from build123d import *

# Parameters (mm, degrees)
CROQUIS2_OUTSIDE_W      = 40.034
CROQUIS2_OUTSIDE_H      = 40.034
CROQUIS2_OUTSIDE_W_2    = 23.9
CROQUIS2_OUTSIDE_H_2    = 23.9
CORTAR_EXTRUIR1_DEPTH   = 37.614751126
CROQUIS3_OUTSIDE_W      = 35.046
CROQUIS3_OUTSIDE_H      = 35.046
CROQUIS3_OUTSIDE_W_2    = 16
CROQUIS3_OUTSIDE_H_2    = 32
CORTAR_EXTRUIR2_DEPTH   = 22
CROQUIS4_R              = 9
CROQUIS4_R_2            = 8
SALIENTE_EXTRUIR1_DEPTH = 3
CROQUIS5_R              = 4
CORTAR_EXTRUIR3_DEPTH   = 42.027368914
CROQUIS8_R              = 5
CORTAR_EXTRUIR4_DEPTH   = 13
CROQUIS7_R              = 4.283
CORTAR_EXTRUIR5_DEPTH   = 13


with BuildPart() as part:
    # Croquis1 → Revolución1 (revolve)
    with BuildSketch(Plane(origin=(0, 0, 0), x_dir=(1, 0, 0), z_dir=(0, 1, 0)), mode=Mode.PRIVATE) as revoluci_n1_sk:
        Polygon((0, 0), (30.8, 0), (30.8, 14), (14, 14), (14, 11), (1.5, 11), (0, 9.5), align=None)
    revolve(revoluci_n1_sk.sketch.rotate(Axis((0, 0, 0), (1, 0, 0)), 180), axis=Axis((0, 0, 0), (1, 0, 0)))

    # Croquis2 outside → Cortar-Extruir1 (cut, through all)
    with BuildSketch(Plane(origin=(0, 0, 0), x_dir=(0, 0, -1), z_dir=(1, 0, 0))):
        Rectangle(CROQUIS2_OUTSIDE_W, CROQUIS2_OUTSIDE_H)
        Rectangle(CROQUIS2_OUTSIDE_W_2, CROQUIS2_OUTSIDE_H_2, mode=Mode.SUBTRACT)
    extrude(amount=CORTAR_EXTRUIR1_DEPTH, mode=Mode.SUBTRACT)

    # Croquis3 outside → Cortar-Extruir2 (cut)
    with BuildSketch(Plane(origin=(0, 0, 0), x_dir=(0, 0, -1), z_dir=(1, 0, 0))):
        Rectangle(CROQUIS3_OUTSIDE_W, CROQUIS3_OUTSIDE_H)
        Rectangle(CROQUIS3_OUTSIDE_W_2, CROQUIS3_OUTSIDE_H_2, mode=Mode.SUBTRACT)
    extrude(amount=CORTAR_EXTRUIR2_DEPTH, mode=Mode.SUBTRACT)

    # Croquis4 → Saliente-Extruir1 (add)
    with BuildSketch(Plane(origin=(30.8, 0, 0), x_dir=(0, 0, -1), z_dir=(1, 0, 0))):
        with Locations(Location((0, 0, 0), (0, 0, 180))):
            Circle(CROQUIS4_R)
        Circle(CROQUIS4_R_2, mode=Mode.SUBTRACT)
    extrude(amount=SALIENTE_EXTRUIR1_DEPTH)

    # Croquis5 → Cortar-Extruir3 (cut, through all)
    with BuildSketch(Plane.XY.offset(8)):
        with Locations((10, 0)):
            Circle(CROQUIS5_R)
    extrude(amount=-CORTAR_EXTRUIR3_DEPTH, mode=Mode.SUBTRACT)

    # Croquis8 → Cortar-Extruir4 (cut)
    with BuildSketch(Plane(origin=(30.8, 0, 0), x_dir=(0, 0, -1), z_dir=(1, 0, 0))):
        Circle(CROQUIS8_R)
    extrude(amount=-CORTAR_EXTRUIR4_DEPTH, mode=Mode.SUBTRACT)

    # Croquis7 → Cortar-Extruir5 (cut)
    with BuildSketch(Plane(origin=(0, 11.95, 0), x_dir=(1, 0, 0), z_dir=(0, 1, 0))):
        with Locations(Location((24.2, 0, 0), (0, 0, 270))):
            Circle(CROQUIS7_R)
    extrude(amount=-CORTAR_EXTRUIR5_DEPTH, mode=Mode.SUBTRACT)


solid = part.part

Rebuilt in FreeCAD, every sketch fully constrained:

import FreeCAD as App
import Part
import Sketcher

V = App.Vector
Q = App.Units.Quantity

doc = App.newDocument("Part")
body = doc.addObject("PartDesign::Body", "Body")

sketch1 = body.newObject("Sketcher::SketchObject", "Sketch")
sketch1.AttachmentSupport = (doc.getObject("XZ_Plane"), [""])
sketch1.MapMode = "FlatFace"
sketch1.addGeometry(Part.LineSegment(V(0, 0, 0), V(30.8, 0, 0)), False)
sketch1.addGeometry(Part.LineSegment(V(30.8, 0, 0), V(30.8, -14, 0)), False)
sketch1.addGeometry(Part.LineSegment(V(30.8, -14, 0), V(14, -14, 0)), False)
sketch1.addGeometry(Part.LineSegment(V(14, -14, 0), V(14, -11, 0)), False)
sketch1.addGeometry(Part.LineSegment(V(14, -11, 0), V(1.5, -11, 0)), False)
sketch1.addGeometry(Part.LineSegment(V(1.5, -11, 0), V(0, -9.5, 0)), False)
sketch1.addGeometry(Part.LineSegment(V(0, -9.5, 0), V(0, 0, 0)), False)
sketch1.addConstraint(Sketcher.Constraint("Coincident", 0, 2, 1, 1))
sketch1.addConstraint(Sketcher.Constraint("Coincident", 1, 2, 2, 1))
sketch1.addConstraint(Sketcher.Constraint("Coincident", 2, 2, 3, 1))
sketch1.addConstraint(Sketcher.Constraint("Coincident", 3, 2, 4, 1))
sketch1.addConstraint(Sketcher.Constraint("Coincident", 4, 2, 5, 1))
sketch1.addConstraint(Sketcher.Constraint("Coincident", 5, 2, 6, 1))
sketch1.addConstraint(Sketcher.Constraint("Coincident", 6, 2, 0, 1))
sketch1.addConstraint(Sketcher.Constraint("Horizontal", 0))
sketch1.addConstraint(Sketcher.Constraint("Vertical", 1))
sketch1.addConstraint(Sketcher.Constraint("Horizontal", 2))
sketch1.addConstraint(Sketcher.Constraint("Vertical", 3))
sketch1.addConstraint(Sketcher.Constraint("Horizontal", 4))
sketch1.addConstraint(Sketcher.Constraint("Vertical", 6))
sketch1.addConstraint(Sketcher.Constraint("Coincident", 6, 2, -1, 1))
sketch1.addConstraint(Sketcher.Constraint("DistanceY", 1, 2, 1, 1, Q("14 mm")))
sketch1.addConstraint(Sketcher.Constraint("DistanceY", 3, 1, 3, 2, Q("3 mm")))
sketch1.addConstraint(Sketcher.Constraint("Angle", 5, Q("135 deg")))
sketch1.addConstraint(Sketcher.Constraint("DistanceX", 0, 1, 0, 2, Q("30.8 mm")))
sketch1.addConstraint(Sketcher.Constraint("DistanceX", 2, 2, 2, 1, Q("16.8 mm")))
sketch1.addConstraint(Sketcher.Constraint("DistanceX", 4, 2, 4, 1, Q("12.5 mm")))
revolution = body.newObject("PartDesign::Revolution", "Revolution")
revolution.Profile = sketch1
revolution.ReferenceAxis = (sketch1, ["H_Axis"])
revolution.Angle = 360

sketch2 = body.newObject("Sketcher::SketchObject", "Sketch001")
sketch2.AttachmentSupport = (doc.getObject("YZ_Plane"), [""])
sketch2.MapMode = "FlatFace"
sketch2.addGeometry(Part.LineSegment(V(20, 20, 0), V(-20, 20, 0)), False)
sketch2.addGeometry(Part.LineSegment(V(-20, 20, 0), V(-20, -20, 0)), False)
sketch2.addGeometry(Part.LineSegment(V(-20, -20, 0), V(20, -20, 0)), False)
sketch2.addGeometry(Part.LineSegment(V(20, -20, 0), V(20, 20, 0)), False)
sketch2.addGeometry(Part.LineSegment(V(-12, -12, 0), V(-12, 12, 0)), False)
sketch2.addGeometry(Part.LineSegment(V(-12, 12, 0), V(12, 12, 0)), False)
sketch2.addGeometry(Part.LineSegment(V(12, 12, 0), V(12, -12, 0)), False)
sketch2.addGeometry(Part.LineSegment(V(12, -12, 0), V(-12, -12, 0)), False)
sketch2.addConstraint(Sketcher.Constraint("Coincident", 0, 2, 1, 1))
sketch2.addConstraint(Sketcher.Constraint("Coincident", 1, 2, 2, 1))
sketch2.addConstraint(Sketcher.Constraint("Coincident", 2, 2, 3, 1))
sketch2.addConstraint(Sketcher.Constraint("Coincident", 3, 2, 0, 1))
sketch2.addConstraint(Sketcher.Constraint("Coincident", 4, 2, 5, 1))
sketch2.addConstraint(Sketcher.Constraint("Coincident", 5, 2, 6, 1))
sketch2.addConstraint(Sketcher.Constraint("Coincident", 6, 2, 7, 1))
sketch2.addConstraint(Sketcher.Constraint("Coincident", 7, 2, 4, 1))
sketch2.addConstraint(Sketcher.Constraint("Horizontal", 0))
sketch2.addConstraint(Sketcher.Constraint("Vertical", 1))
sketch2.addConstraint(Sketcher.Constraint("Horizontal", 2))
sketch2.addConstraint(Sketcher.Constraint("Vertical", 3))
sketch2.addConstraint(Sketcher.Constraint("Vertical", 4))
sketch2.addConstraint(Sketcher.Constraint("Horizontal", 5))
sketch2.addConstraint(Sketcher.Constraint("Vertical", 6))
sketch2.addConstraint(Sketcher.Constraint("Horizontal", 7))
sketch2.addConstraint(Sketcher.Constraint("Symmetric", 0, 2, 2, 2, -1, 1))
sketch2.addConstraint(Sketcher.Constraint("Symmetric", 4, 2, 6, 2, -1, 1))
sketch2.addConstraint(Sketcher.Constraint("Equal", 2, 1))
sketch2.addConstraint(Sketcher.Constraint("Equal", 7, 4))
sketch2.addConstraint(Sketcher.Constraint("DistanceX", 5, 1, 5, 2, Q("23.9 mm")))
sketch2.addConstraint(Sketcher.Constraint("DistanceX", 0, 2, 0, 1, Q("40.034 mm")))
pocket1 = body.newObject("PartDesign::Pocket", "Pocket")
pocket1.Profile = sketch2
pocket1.Type = "ThroughAll"
pocket1.Reversed = True

sketch3 = body.newObject("Sketcher::SketchObject", "Sketch002")
sketch3.AttachmentSupport = (doc.getObject("YZ_Plane"), [""])
sketch3.MapMode = "FlatFace"
sketch3.addGeometry(Part.LineSegment(V(18, 18, 0), V(-18, 18, 0)), False)
sketch3.addGeometry(Part.LineSegment(V(-18, 18, 0), V(-18, -18, 0)), False)
sketch3.addGeometry(Part.LineSegment(V(-18, -18, 0), V(18, -18, 0)), False)
sketch3.addGeometry(Part.LineSegment(V(18, -18, 0), V(18, 18, 0)), False)
sketch3.addGeometry(Part.LineSegment(V(-16, -8, 0), V(-16, 8, 0)), False)
sketch3.addGeometry(Part.LineSegment(V(-16, 8, 0), V(16, 8, 0)), False)
sketch3.addGeometry(Part.LineSegment(V(16, 8, 0), V(16, -8, 0)), False)
sketch3.addGeometry(Part.LineSegment(V(16, -8, 0), V(-16, -8, 0)), False)
sketch3.addConstraint(Sketcher.Constraint("Coincident", 0, 2, 1, 1))
sketch3.addConstraint(Sketcher.Constraint("Coincident", 1, 2, 2, 1))
sketch3.addConstraint(Sketcher.Constraint("Coincident", 2, 2, 3, 1))
sketch3.addConstraint(Sketcher.Constraint("Coincident", 3, 2, 0, 1))
sketch3.addConstraint(Sketcher.Constraint("Coincident", 4, 2, 5, 1))
sketch3.addConstraint(Sketcher.Constraint("Coincident", 5, 2, 6, 1))
sketch3.addConstraint(Sketcher.Constraint("Coincident", 6, 2, 7, 1))
sketch3.addConstraint(Sketcher.Constraint("Coincident", 7, 2, 4, 1))
sketch3.addConstraint(Sketcher.Constraint("Horizontal", 0))
sketch3.addConstraint(Sketcher.Constraint("Vertical", 1))
sketch3.addConstraint(Sketcher.Constraint("Horizontal", 2))
sketch3.addConstraint(Sketcher.Constraint("Vertical", 3))
sketch3.addConstraint(Sketcher.Constraint("Vertical", 4))
sketch3.addConstraint(Sketcher.Constraint("Horizontal", 5))
sketch3.addConstraint(Sketcher.Constraint("Vertical", 6))
sketch3.addConstraint(Sketcher.Constraint("Horizontal", 7))
sketch3.addConstraint(Sketcher.Constraint("Symmetric", 0, 2, 2, 2, -1, 1))
sketch3.addConstraint(Sketcher.Constraint("Symmetric", 4, 2, 6, 2, -1, 1))
sketch3.addConstraint(Sketcher.Constraint("Equal", 2, 1))
sketch3.addConstraint(Sketcher.Constraint("DistanceX", 5, 1, 5, 2, Q("32 mm")))
sketch3.addConstraint(Sketcher.Constraint("DistanceY", 4, 1, 4, 2, Q("16 mm")))
sketch3.addConstraint(Sketcher.Constraint("DistanceX", 0, 2, 0, 1, Q("35.046 mm")))
pocket2 = body.newObject("PartDesign::Pocket", "Pocket001")
pocket2.Profile = sketch3
pocket2.Length = 22
pocket2.Reversed = True

sketch4 = body.newObject("Sketcher::SketchObject", "Sketch003")
sketch4.AttachmentSupport = (doc.getObject("YZ_Plane"), [""])
sketch4.MapMode = "FlatFace"
sketch4.AttachmentOffset = App.Placement(V(0, 0, 30.8), App.Rotation())
sketch4.addGeometry(Part.Circle(V(0, 0, 0), V(0, 0, 1), 9), False)
sketch4.addGeometry(Part.Circle(V(0, 0, 0), V(0, 0, 1), 8), False)
sketch4.addConstraint(Sketcher.Constraint("Coincident", 0, 3, -1, 1))
sketch4.addConstraint(Sketcher.Constraint("Coincident", 1, 3, -1, 1))
sketch4.addConstraint(Sketcher.Constraint("Diameter", 0, Q("18 mm")))
sketch4.addConstraint(Sketcher.Constraint("Diameter", 1, Q("16 mm")))
pad1 = body.newObject("PartDesign::Pad", "Pad")
pad1.Profile = sketch4
pad1.Length = 3

sketch5 = body.newObject("Sketcher::SketchObject", "Sketch004")
sketch5.AttachmentSupport = (doc.getObject("XY_Plane"), [""])
sketch5.MapMode = "FlatFace"
sketch5.AttachmentOffset = App.Placement(V(0, 0, 8), App.Rotation())
sketch5.addGeometry(Part.Circle(V(10, 0, 0), V(0, 0, 1), 4), False)
sketch5.addConstraint(Sketcher.Constraint("PointOnObject", 0, 3, -1))
sketch5.addConstraint(Sketcher.Constraint("Diameter", 0, Q("8 mm")))
sketch5.addConstraint(Sketcher.Constraint("DistanceX", -1, 1, 0, 3, Q("10 mm")))
pocket3 = body.newObject("PartDesign::Pocket", "Pocket002")
pocket3.Profile = sketch5
pocket3.Type = "ThroughAll"

sketch6 = body.newObject("Sketcher::SketchObject", "Sketch005")
sketch6.AttachmentSupport = (doc.getObject("YZ_Plane"), [""])
sketch6.MapMode = "FlatFace"
sketch6.AttachmentOffset = App.Placement(V(0, 0, 30.8), App.Rotation())
sketch6.addGeometry(Part.Circle(V(0, 0, 0), V(0, 0, 1), 5), False)
sketch6.addConstraint(Sketcher.Constraint("Coincident", 0, 3, -1, 1))
sketch6.addConstraint(Sketcher.Constraint("Diameter", 0, Q("10 mm")))
pocket4 = body.newObject("PartDesign::Pocket", "Pocket003")
pocket4.Profile = sketch6
pocket4.Length = 13

sketch7 = body.newObject("Sketcher::SketchObject", "Sketch006")
sketch7.AttachmentSupport = (doc.getObject("XZ_Plane"), [""])
sketch7.MapMode = "FlatFace"
sketch7.AttachmentOffset = App.Placement(V(0, 0, -11.95), App.Rotation())
sketch7.addGeometry(Part.Circle(V(24.2, 0, 0), V(0, 0, 1), 4.3), False)
sketch7.addConstraint(Sketcher.Constraint("PointOnObject", 0, 3, -1))
sketch7.addConstraint(Sketcher.Constraint("Diameter", 0, Q("8.566 mm")))
sketch7.addConstraint(Sketcher.Constraint("DistanceX", -1, 1, 0, 3, Q("24.2 mm")))
pocket5 = body.newObject("PartDesign::Pocket", "Pocket004")
pocket5.Profile = sketch7
pocket5.Length = 13
pocket5.Reversed = True

doc.recompute()
